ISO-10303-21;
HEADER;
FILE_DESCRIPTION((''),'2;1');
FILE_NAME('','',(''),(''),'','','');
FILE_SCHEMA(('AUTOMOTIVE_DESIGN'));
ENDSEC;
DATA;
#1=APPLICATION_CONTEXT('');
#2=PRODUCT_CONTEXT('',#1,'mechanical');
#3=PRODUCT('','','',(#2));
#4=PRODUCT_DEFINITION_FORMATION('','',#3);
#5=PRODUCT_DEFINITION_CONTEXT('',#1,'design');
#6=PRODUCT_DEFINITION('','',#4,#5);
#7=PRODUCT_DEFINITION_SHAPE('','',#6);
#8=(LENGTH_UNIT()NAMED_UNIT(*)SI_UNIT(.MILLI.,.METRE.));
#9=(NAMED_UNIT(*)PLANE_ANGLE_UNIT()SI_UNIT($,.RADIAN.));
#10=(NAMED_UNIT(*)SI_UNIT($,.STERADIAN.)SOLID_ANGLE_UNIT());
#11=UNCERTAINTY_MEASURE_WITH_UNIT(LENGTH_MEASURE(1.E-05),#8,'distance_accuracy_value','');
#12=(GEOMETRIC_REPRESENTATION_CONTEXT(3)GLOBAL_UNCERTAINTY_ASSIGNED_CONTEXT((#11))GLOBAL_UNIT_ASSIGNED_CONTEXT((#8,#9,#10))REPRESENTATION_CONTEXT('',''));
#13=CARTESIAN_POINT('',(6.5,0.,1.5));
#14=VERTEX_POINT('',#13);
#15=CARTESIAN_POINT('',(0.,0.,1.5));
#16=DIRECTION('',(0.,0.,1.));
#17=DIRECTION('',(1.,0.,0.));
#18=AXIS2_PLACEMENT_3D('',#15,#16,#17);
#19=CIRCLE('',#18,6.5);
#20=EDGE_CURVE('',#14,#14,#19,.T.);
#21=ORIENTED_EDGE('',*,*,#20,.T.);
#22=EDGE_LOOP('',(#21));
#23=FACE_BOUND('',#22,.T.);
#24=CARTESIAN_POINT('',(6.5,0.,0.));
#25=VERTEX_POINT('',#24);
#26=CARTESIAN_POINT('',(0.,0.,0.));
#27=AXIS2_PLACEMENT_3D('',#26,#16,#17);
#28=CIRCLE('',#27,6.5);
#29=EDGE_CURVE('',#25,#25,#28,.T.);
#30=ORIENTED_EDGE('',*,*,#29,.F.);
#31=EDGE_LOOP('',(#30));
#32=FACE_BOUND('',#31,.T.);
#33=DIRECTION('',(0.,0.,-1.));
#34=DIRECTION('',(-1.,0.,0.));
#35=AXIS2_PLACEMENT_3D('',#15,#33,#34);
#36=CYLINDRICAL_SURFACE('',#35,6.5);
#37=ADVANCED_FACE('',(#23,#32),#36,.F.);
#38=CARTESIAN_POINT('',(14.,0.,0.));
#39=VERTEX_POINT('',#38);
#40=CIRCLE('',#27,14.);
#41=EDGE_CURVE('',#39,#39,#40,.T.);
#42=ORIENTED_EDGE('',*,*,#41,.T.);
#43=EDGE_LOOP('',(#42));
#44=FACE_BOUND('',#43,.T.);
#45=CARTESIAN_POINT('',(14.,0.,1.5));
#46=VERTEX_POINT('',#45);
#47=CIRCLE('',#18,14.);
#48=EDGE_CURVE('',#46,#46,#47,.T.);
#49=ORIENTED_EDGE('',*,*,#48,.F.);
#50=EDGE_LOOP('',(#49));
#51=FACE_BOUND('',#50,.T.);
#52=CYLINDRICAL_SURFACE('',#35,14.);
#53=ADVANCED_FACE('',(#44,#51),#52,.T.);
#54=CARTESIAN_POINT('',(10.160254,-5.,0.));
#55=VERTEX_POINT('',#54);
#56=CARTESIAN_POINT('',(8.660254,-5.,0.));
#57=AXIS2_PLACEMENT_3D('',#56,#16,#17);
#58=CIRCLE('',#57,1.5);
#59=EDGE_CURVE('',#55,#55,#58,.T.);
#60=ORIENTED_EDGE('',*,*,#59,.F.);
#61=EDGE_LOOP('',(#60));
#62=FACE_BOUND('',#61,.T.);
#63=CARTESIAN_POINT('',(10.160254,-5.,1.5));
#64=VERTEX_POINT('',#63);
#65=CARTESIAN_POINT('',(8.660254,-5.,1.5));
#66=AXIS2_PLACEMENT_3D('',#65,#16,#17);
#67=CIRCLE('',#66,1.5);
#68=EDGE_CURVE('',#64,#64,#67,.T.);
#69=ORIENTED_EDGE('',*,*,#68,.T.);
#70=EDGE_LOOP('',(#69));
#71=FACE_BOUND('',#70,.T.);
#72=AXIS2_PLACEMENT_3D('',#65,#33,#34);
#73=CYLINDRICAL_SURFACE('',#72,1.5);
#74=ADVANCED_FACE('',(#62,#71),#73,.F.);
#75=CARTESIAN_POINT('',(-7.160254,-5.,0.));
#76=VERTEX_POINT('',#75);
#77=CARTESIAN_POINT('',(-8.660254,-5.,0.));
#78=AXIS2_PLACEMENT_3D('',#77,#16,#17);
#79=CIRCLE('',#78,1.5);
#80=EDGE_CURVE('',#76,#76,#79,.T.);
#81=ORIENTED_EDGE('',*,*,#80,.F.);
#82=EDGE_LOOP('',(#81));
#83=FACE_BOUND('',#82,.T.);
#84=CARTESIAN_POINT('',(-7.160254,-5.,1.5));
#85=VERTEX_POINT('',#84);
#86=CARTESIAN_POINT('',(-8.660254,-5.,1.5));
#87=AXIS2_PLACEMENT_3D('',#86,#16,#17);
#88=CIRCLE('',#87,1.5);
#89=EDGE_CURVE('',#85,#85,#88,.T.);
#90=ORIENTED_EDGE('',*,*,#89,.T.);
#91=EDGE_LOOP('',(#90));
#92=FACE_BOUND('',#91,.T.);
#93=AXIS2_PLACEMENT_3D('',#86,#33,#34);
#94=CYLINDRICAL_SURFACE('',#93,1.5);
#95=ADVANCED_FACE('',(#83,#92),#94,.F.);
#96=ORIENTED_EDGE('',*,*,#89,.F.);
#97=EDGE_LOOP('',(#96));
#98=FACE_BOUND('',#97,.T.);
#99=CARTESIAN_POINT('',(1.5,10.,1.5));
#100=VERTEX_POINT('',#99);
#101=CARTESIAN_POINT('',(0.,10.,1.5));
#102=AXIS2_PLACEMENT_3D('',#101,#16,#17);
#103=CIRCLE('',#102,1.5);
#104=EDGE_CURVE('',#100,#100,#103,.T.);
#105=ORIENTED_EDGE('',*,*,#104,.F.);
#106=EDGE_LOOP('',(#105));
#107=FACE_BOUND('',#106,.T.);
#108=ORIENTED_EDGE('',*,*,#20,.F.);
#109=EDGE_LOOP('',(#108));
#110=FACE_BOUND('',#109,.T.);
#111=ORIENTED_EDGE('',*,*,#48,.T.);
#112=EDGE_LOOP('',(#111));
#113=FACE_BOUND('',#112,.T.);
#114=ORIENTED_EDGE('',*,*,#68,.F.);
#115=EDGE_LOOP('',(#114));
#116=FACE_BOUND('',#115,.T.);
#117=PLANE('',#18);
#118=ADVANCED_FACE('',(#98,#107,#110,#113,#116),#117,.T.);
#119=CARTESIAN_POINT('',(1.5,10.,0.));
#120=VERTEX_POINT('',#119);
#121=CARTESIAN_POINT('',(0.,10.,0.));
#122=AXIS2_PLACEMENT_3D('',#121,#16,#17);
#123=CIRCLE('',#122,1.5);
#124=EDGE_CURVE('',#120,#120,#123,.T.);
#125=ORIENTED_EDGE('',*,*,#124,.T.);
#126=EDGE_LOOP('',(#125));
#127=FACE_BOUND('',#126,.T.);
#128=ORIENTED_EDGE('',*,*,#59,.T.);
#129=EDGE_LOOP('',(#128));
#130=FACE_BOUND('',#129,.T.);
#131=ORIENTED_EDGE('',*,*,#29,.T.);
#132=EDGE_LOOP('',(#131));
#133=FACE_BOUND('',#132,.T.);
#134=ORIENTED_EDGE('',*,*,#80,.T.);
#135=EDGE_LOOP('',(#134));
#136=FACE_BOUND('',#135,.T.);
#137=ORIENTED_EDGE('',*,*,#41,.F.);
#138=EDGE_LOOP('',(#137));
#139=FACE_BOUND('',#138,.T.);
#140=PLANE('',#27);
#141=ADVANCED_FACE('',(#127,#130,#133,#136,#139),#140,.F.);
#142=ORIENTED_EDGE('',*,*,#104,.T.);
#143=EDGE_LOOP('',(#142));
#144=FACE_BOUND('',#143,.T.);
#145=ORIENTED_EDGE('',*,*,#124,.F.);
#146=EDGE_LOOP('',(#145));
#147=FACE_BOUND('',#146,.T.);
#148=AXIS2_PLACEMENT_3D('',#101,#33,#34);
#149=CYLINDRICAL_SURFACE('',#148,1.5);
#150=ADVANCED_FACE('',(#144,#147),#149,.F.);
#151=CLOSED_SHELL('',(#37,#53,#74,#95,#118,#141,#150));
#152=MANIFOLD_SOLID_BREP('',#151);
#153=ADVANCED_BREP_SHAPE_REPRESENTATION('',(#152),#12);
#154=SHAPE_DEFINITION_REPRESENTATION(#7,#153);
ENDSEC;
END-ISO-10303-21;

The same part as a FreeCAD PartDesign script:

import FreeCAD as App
import Part
import Sketcher
from FreeCAD import Vector
Q = App.Units.Quantity

doc = App.newDocument("Part")
body = doc.addObject("PartDesign::Body", "Body")

sketch1 = body.newObject("Sketcher::SketchObject", "Sketch")
sketch1.AttachmentSupport = (doc.getObject("XY_Plane"), [""])
sketch1.MapMode = "FlatFace"
sketch1.addGeometry(Part.Circle(Vector(0, 0, 0), Vector(0, 0, 1), 14), False)
sketch1.addGeometry(Part.Circle(Vector(-8.660254, -5, 0), Vector(0, 0, 1), 1.5), False)
sketch1.addGeometry(Part.Circle(Vector(8.660254, -5, 0), Vector(0, 0, 1), 1.5), False)
sketch1.addGeometry(Part.Circle(Vector(0, 0, 0), Vector(0, 0, 1), 6.5), False)
sketch1.addGeometry(Part.Circle(Vector(0, 10, 0), Vector(0, 0, 1), 1.5), False)
sketch1.addConstraint(Sketcher.Constraint("Coincident", 0, 3, -1, 1))
sketch1.addConstraint(Sketcher.Constraint("Coincident", 3, 3, -1, 1))
sketch1.addConstraint(Sketcher.Constraint("Equal", 1, 2))
sketch1.addConstraint(Sketcher.Constraint("Equal", 2, 4))
sketch1.addConstraint(Sketcher.Constraint("Symmetric", 1, 3, 2, 3, -2))
sketch1.addConstraint(Sketcher.Constraint("PointOnObject", 4, 3, -2))
sketch1.addConstraint(Sketcher.Constraint("Diameter", 0, Q("28 mm")))
sketch1.addConstraint(Sketcher.Constraint("Diameter", 1, Q("3 mm")))
sketch1.addConstraint(Sketcher.Constraint("Diameter", 3, Q("13 mm")))
sketch1.addConstraint(Sketcher.Constraint("DistanceY", 1, 3, -1, 1, Q("5 mm")))
sketch1.addConstraint(Sketcher.Constraint("DistanceY", -1, 1, 4, 3, Q("10 mm")))
sketch1.addConstraint(Sketcher.Constraint("DistanceX", 1, 3, 2, 3, Q("17.320508 mm")))
pad1 = body.newObject("PartDesign::Pad", "Pad")
pad1.Profile = sketch1
pad1.Length = 1.5

doc.recompute()
